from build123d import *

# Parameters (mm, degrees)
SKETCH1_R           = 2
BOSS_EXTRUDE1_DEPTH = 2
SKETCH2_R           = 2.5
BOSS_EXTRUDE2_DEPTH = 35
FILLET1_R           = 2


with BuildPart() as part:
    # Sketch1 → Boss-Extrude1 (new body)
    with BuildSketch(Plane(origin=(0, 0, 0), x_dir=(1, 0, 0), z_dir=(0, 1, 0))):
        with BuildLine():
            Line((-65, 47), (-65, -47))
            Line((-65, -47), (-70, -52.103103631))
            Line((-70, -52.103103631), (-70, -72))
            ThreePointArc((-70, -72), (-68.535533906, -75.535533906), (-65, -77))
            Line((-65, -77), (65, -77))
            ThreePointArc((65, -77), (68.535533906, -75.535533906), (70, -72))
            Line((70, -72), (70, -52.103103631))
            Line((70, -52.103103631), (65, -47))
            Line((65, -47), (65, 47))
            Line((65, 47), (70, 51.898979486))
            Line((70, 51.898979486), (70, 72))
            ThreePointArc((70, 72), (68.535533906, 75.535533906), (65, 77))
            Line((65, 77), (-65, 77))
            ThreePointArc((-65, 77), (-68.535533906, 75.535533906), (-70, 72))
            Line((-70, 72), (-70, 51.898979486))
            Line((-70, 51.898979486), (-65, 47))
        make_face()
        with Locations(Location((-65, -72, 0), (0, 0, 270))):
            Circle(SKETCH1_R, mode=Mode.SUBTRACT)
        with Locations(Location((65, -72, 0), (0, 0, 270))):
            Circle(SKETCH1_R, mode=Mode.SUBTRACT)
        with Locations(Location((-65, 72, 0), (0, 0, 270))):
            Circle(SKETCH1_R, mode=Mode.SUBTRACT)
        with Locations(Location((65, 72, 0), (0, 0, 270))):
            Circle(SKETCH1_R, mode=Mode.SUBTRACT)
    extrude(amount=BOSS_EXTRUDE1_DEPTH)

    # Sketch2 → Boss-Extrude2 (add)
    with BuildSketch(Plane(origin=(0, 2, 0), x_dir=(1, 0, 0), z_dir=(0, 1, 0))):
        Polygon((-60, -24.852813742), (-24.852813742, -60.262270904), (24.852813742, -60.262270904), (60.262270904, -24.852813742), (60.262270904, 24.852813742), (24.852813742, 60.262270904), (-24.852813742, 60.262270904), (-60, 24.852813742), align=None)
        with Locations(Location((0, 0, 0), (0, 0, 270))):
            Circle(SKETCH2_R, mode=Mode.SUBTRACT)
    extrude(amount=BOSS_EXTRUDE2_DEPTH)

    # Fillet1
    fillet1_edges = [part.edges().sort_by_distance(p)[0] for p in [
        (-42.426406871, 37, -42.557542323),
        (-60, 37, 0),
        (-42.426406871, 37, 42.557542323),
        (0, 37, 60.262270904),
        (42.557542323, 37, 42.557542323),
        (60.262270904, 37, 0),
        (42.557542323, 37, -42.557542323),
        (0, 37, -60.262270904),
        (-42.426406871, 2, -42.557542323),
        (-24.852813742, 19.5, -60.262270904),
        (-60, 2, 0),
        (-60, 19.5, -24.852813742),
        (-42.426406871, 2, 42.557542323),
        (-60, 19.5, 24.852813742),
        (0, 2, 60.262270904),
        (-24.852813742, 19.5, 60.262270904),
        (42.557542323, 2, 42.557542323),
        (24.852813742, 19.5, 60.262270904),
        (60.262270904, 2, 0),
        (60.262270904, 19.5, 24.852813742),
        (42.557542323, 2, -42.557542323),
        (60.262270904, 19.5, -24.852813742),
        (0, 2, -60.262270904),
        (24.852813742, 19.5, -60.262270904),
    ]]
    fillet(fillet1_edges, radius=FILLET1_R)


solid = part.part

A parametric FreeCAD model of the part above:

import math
import FreeCAD as App
import Part
import Sketcher
Q = App.Units.Quantity


def edges_at(feature, points):
    """Names of the edges that pass closest to the given points."""
    edges = feature.Shape.Edges
    near = lambda p: min(range(len(edges)), key=lambda i: edges[i].distToShape(Part.Vertex(*p))[0])
    return sorted({f"Edge{near(p) + 1}" for p in points})

doc = App.newDocument("Part")
body = doc.addObject("PartDesign::Body", "Body")

sketch1 = doc.addObject("Sketcher::SketchObject", "Sketch")
body.addObject(sketch1)
sketch1.AttachmentSupport = (doc.XZ_Plane, [""])
sketch1.MapMode = "FlatFace"
sketch1.addGeometry(Part.LineSegment(App.Vector(-65, -47, 0), App.Vector(-65, 47, 0)), False)
sketch1.addGeometry(Part.LineSegment(App.Vector(-65, 47, 0), App.Vector(-70, 52.103104, 0)), False)
sketch1.addGeometry(Part.LineSegment(App.Vector(-70, 52.103104, 0), App.Vector(-70, 72, 0)), False)
sketch1.addGeometry(Part.ArcOfCircle(Part.Circle(App.Vector(-65, 72, 0), App.Vector(0, 0, 1), 5), math.radians(90), math.radians(180)), False)
sketch1.addGeometry(Part.LineSegment(App.Vector(-65, 77, 0), App.Vector(65, 77, 0)), False)
sketch1.addGeometry(Part.ArcOfCircle(Part.Circle(App.Vector(65, 72, 0), App.Vector(0, 0, 1), 5), math.radians(0), math.radians(90)), False)
sketch1.addGeometry(Part.LineSegment(App.Vector(70, 72, 0), App.Vector(70, 52.103104, 0)), False)
sketch1.addGeometry(Part.LineSegment(App.Vector(70, 52.103104, 0), App.Vector(65, 47, 0)), False)
sketch1.addGeometry(Part.LineSegment(App.Vector(65, 47, 0), App.Vector(65, -47, 0)), False)
sketch1.addGeometry(Part.LineSegment(App.Vector(65, -47, 0), App.Vector(70, -51.898979, 0)), False)
sketch1.addGeometry(Part.LineSegment(App.Vector(70, -51.898979, 0), App.Vector(70, -72, 0)), False)
sketch1.addGeometry(Part.ArcOfCircle(Part.Circle(App.Vector(65, -72, 0), App.Vector(0, 0, 1), 5), math.radians(-90), math.radians(0)), False)
sketch1.addGeometry(Part.LineSegment(App.Vector(65, -77, 0), App.Vector(-65, -77, 0)), False)
sketch1.addGeometry(Part.ArcOfCircle(Part.Circle(App.Vector(-65, -72, 0), App.Vector(0, 0, 1), 5), math.radians(180), math.radians(270)), False)
sketch1.addGeometry(Part.LineSegment(App.Vector(-70, -72, 0), App.Vector(-70, -51.898979, 0)), False)
sketch1.addGeometry(Part.LineSegment(App.Vector(-70, -51.898979, 0), App.Vector(-65, -47, 0)), False)
sketch1.addGeometry(Part.Circle(App.Vector(-65, 72, 0), App.Vector(0, 0, 1), 2), False)
sketch1.addGeometry(Part.Circle(App.Vector(65, 72, 0), App.Vector(0, 0, 1), 2), False)
sketch1.addGeometry(Part.Circle(App.Vector(-65, -72, 0), App.Vector(0, 0, 1), 2), False)
sketch1.addGeometry(Part.Circle(App.Vector(65, -72, 0), App.Vector(0, 0, 1), 2), False)
sketch1.addConstraint(Sketcher.Constraint("Coincident", 0, 2, 1, 1))
sketch1.addConstraint(Sketcher.Constraint("Coincident", 1, 2, 2, 1))
sketch1.addConstraint(Sketcher.Constraint("Tangent", 2, 2, 3, 2))
sketch1.addConstraint(Sketcher.Constraint("Tangent", 3, 1, 4, 1))
sketch1.addConstraint(Sketcher.Constraint("Tangent", 4, 2, 5, 2))
sketch1.addConstraint(Sketcher.Constraint("Tangent", 5, 1, 6, 1))
sketch1.addConstraint(Sketcher.Constraint("Coincident", 6, 2, 7, 1))
sketch1.addConstraint(Sketcher.Constraint("Coincident", 7, 2, 8, 1))
sketch1.addConstraint(Sketcher.Constraint("Coincident", 8, 2, 9, 1))
sketch1.addConstraint(Sketcher.Constraint("Coincident", 9, 2, 10, 1))
sketch1.addConstraint(Sketcher.Constraint("Tangent", 10, 2, 11, 2))
sketch1.addConstraint(Sketcher.Constraint("Tangent", 11, 1, 12, 1))
sketch1.addConstraint(Sketcher.Constraint("Tangent", 12, 2, 13, 2))
sketch1.addConstraint(Sketcher.Constraint("Tangent", 13, 1, 14, 1))
sketch1.addConstraint(Sketcher.Constraint("Coincident", 14, 2, 15, 1))
sketch1.addConstraint(Sketcher.Constraint("Coincident", 15, 2, 0, 1))
sketch1.addConstraint(Sketcher.Constraint("Vertical", 0))
sketch1.addConstraint(Sketcher.Constraint("Vertical", 2))
sketch1.addConstraint(Sketcher.Constraint("Horizontal", 4))
sketch1.addConstraint(Sketcher.Constraint("Vertical", 6))
sketch1.addConstraint(Sketcher.Constraint("Vertical", 8))
sketch1.addConstraint(Sketcher.Constraint("Vertical", 10))
sketch1.addConstraint(Sketcher.Constraint("Horizontal", 12))
sketch1.addConstraint(Sketcher.Constraint("Vertical", 14))
sketch1.addConstraint(Sketcher.Constraint("Coincident", 16, 3, 3, 3))
sketch1.addConstraint(Sketcher.Constraint("Coincident", 17, 3, 5, 3))
sketch1.addConstraint(Sketcher.Constraint("Coincident", 18, 3, 13, 3))
sketch1.addConstraint(Sketcher.Constraint("Coincident", 19, 3, 11, 3))
sketch1.addConstraint(Sketcher.Constraint("Equal", 3, 5))
sketch1.addConstraint(Sketcher.Constraint("Equal", 5, 11))
sketch1.addConstraint(Sketcher.Constraint("Equal", 11, 13))
sketch1.addConstraint(Sketcher.Constraint("Equal", 16, 17))
sketch1.addConstraint(Sketcher.Constraint("Equal", 17, 18))
sketch1.addConstraint(Sketcher.Constraint("Equal", 18, 19))
sketch1.addConstraint(Sketcher.Constraint("Symmetric", 3, 3, 11, 3, -1, 1))
sketch1.addConstraint(Sketcher.Constraint("Symmetric", 0, 2, 8, 2, -1, 1))
sketch1.addConstraint(Sketcher.Constraint("Symmetric", 1, 2, 6, 2, -2))
sketch1.addConstraint(Sketcher.Constraint("Symmetric", 9, 2, 14, 2, -2))
sketch1.addConstraint(Sketcher.Constraint("Perpendicular", 7, 9))
sketch1.addConstraint(Sketcher.Constraint("Perpendicular", 1, 15))
sketch1.addConstraint(Sketcher.Constraint("Horizontal", 0, 2, 7, 2))
sketch1.addConstraint(Sketcher.Constraint("Vertical", 18, 3, 0, 2))
sketch1.addConstraint(Sketcher.Constraint("Diameter", 16, Q("4 mm")))
sketch1.addConstraint(Sketcher.Constraint("Radius", 3, Q("5 mm")))
sketch1.addConstraint(Sketcher.Constraint("DistanceX", 4, 1, 4, 2, Q("130 mm")))
sketch1.addConstraint(Sketcher.Constraint("DistanceY", 0, 1, 0, 2, Q("94 mm")))
sketch1.addConstraint(Sketcher.Constraint("Distance", 9, Q("7 mm")))
sketch1.addConstraint(Sketcher.Constraint("DistanceY", -1, 1, 3, 3, Q("72 mm")))
pad1 = doc.addObject("PartDesign::Pad", "Pad")
body.addObject(pad1)
pad1.Profile = sketch1
pad1.Length = 2
pad1.Reversed = True

sketch2 = doc.addObject("Sketcher::SketchObject", "Sketch001")
body.addObject(sketch2)
sketch2.AttachmentSupport = (doc.XZ_Plane, [""])
sketch2.MapMode = "FlatFace"
sketch2.AttachmentOffset = App.Placement(App.Vector(0, 0, -2), App.Rotation())
sketch2.addGeometry(Part.LineSegment(App.Vector(-60, 24.852814, 0), App.Vector(-24.852814, 60.262271, 0)), False)
sketch2.addGeometry(Part.LineSegment(App.Vector(-24.852814, 60.262271, 0), App.Vector(24.852814, 60.262271, 0)), False)
sketch2.addGeometry(Part.LineSegment(App.Vector(24.852814, 60.262271, 0), App.Vector(60.262271, 24.852814, 0)), False)
sketch2.addGeometry(Part.LineSegment(App.Vector(60.262271, 24.852814, 0), App.Vector(60.262271, -24.852814, 0)), False)
sketch2.addGeometry(Part.LineSegment(App.Vector(60.262271, -24.852814, 0), App.Vector(24.852814, -60.262271, 0)), False)
sketch2.addGeometry(Part.LineSegment(App.Vector(24.852814, -60.262271, 0), App.Vector(-24.852814, -60.262271, 0)), False)
sketch2.addGeometry(Part.LineSegment(App.Vector(-24.852814, -60.262271, 0), App.Vector(-60, -24.852814, 0)), False)
sketch2.addGeometry(Part.LineSegment(App.Vector(-60, -24.852814, 0), App.Vector(-60, 24.852814, 0)), False)
sketch2.addGeometry(Part.Circle(App.Vector(0, 0, 0), App.Vector(0, 0, 1), 2.5), False)
sketch2.addConstraint(Sketcher.Constraint("Coincident", 0, 2, 1, 1))
sketch2.addConstraint(Sketcher.Constraint("Coincident", 1, 2, 2, 1))
sketch2.addConstraint(Sketcher.Constraint("Coincident", 2, 2, 3, 1))
sketch2.addConstraint(Sketcher.Constraint("Coincident", 3, 2, 4, 1))
sketch2.addConstraint(Sketcher.Constraint("Coincident", 4, 2, 5, 1))
sketch2.addConstraint(Sketcher.Constraint("Coincident", 5, 2, 6, 1))
sketch2.addConstraint(Sketcher.Constraint("Coincident", 6, 2, 7, 1))
sketch2.addConstraint(Sketcher.Constraint("Coincident", 7, 2, 0, 1))
sketch2.addConstraint(Sketcher.Constraint("Horizontal", 1))
sketch2.addConstraint(Sketcher.Constraint("Vertical", 3))
sketch2.addConstraint(Sketcher.Constraint("Horizontal", 5))
sketch2.addConstraint(Sketcher.Constraint("Vertical", 7))
sketch2.addConstraint(Sketcher.Constraint("Coincident", 8, 3, -1, 1))
sketch2.addConstraint(Sketcher.Constraint("Symmetric", 0, 2, 4, 2, -1, 1))
sketch2.addConstraint(Sketcher.Constraint("Perpendicular", 2, 4))
sketch2.addConstraint(Sketcher.Constraint("Horizontal", 3, 2, 6, 2))
sketch2.addConstraint(Sketcher.Constraint("Horizontal", 2, 2, 7, 2))
sketch2.addConstraint(Sketcher.Constraint("Vertical", 1, 2, 4, 2))
sketch2.addConstraint(Sketcher.Constraint("Vertical", 0, 2, 5, 2))
sketch2.addConstraint(Sketcher.Constraint("Equal", 5, 3))
sketch2.addConstraint(Sketcher.Constraint("Equal", 2, 4))
sketch2.addConstraint(Sketcher.Constraint("Diameter", 8, Q("5 mm")))
sketch2.addConstraint(Sketcher.Constraint("DistanceX", 6, 2, -1, 1, Q("60 mm")))
sketch2.addConstraint(Sketcher.Constraint("DistanceX", 1, 1, 1, 2, Q("49.705627 mm")))
sketch2.addConstraint(Sketcher.Constraint("DistanceY", -1, 1, 0, 2, Q("60.262271 mm")))
pad2 = doc.addObject("PartDesign::Pad", "Pad001")
body.addObject(pad2)
pad2.Profile = sketch2
pad2.Length = 35
pad2.Reversed = True
doc.recompute()

fillet = doc.addObject("PartDesign::Fillet", "Fillet")
body.addObject(fillet)
fillet.Base = (pad2, edges_at(pad2, [
    (-42.426, 37, -42.558),
    (-60, 37, 0),
    (-42.426, 37, 42.558),
    (0, 37, 60.262),
    (42.558, 37, 42.558),
    (60.262, 37, 0),
    (42.558, 37, -42.558),
    (0, 37, -60.262),
    (-42.426, 2, -42.558),
    (-24.853, 19.5, -60.262),
    (-60, 2, 0),
    (-60, 19.5, -24.853),
    (-42.426, 2, 42.558),
    (-60, 19.5, 24.853),
    (0, 2, 60.262),
    (-24.853, 19.5, 60.262),
    (42.558, 2, 42.558),
    (24.853, 19.5, 60.262),
    (60.262, 2, 0),
    (60.262, 19.5, 24.853),
    (42.558, 2, -42.558),
    (60.262, 19.5, -24.853),
    (0, 2, -60.262),
    (24.853, 19.5, -60.262),
]))
fillet.Radius = 2

doc.recompute()
